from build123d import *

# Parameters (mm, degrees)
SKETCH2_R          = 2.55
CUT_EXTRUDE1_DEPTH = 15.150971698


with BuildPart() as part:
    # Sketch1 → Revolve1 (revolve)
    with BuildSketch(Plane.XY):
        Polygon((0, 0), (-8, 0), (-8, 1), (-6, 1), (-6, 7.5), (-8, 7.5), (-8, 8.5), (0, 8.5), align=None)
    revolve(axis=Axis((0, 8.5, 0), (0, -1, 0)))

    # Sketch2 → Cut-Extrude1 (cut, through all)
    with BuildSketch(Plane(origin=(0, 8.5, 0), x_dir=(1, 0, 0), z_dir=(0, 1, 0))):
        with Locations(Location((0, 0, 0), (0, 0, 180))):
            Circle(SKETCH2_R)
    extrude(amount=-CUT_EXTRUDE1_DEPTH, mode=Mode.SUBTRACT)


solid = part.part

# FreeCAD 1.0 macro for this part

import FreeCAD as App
import Part
import Sketcher
from FreeCAD import Vector
Q = App.Units.Quantity

doc = App.newDocument("Part")
body = doc.addObject("PartDesign::Body", "Body")

# Sketch on XY plane
sketch1 = body.newObject("Sketcher::SketchObject", "Sketch")
sketch1.AttachmentSupport = (doc.getObject("XY_Plane"), [""])
sketch1.MapMode = "FlatFace"
sketch1.addGeometry([
    Part.LineSegment(Vector(-8, 0, 0), Vector(0, 0, 0)),  # 0
    Part.LineSegment(Vector(0, 0, 0), Vector(0, 8.5, 0)),  # 1
    Part.LineSegment(Vector(0, 8.5, 0), Vector(-8, 8.5, 0)),  # 2
    Part.LineSegment(Vector(-8, 8.5, 0), Vector(-8, 7.5, 0)),  # 3
    Part.LineSegment(Vector(-8, 7.5, 0), Vector(-6, 7.5, 0)),  # 4
    Part.LineSegment(Vector(-6, 7.5, 0), Vector(-6, 1, 0)),  # 5
    Part.LineSegment(Vector(-6, 1, 0), Vector(-8, 1, 0)),  # 6
    Part.LineSegment(Vector(-8, 1, 0), Vector(-8, 0, 0)),  # 7
], False)
sketch1.addConstraint([
    Sketcher.Constraint("Coincident", 0, 2, 1, 1),
    Sketcher.Constraint("Coincident", 1, 2, 2, 1),
    Sketcher.Constraint("Coincident", 2, 2, 3, 1),
    Sketcher.Constraint("Coincident", 3, 2, 4, 1),
    Sketcher.Constraint("Coincident", 4, 2, 5, 1),
    Sketcher.Constraint("Coincident", 5, 2, 6, 1),
    Sketcher.Constraint("Coincident", 6, 2, 7, 1),
    Sketcher.Constraint("Coincident", 7, 2, 0, 1),
    Sketcher.Constraint("Horizontal", 0),
    Sketcher.Constraint("Vertical", 1),
    Sketcher.Constraint("Horizontal", 2),
    Sketcher.Constraint("Vertical", 3),
    Sketcher.Constraint("Horizontal", 4),
    Sketcher.Constraint("Vertical", 5),
    Sketcher.Constraint("Horizontal", 6),
    Sketcher.Constraint("Vertical", 7),
    Sketcher.Constraint("Coincident", 0, 2, -1, 1),
    Sketcher.Constraint("Vertical", 3, 2, 6, 2),
    Sketcher.Constraint("Equal", 3, 7),
    Sketcher.Constraint("DistanceX", 0, 1, 0, 2, Q("8 mm")),
    Sketcher.Constraint("DistanceX", 4, 1, 4, 2, Q("2 mm")),
    Sketcher.Constraint("DistanceY", 3, 2, 3, 1, Q("1 mm")),
    Sketcher.Constraint("DistanceY", 1, 1, 1, 2, Q("8.5 mm")),
])
revolution = body.newObject("PartDesign::Revolution", "Revolution")
revolution.Profile = sketch1
revolution.ReferenceAxis = (sketch1, ["V_Axis"])
revolution.Angle = 360

# Sketch on XZ plane
sketch2 = body.newObject("Sketcher::SketchObject", "Sketch001")
sketch2.AttachmentSupport = (doc.getObject("XZ_Plane"), [""])
sketch2.MapMode = "FlatFace"
sketch2.AttachmentOffset = App.Placement(Vector(0, 0, -8.5), App.Rotation())
sketch2.addGeometry(Part.Circle(Vector(0, 0, 0), Vector(0, 0, 1), 2.55), False)
sketch2.addConstraint([
    Sketcher.Constraint("Coincident", 0, 3, -1, 1),
    Sketcher.Constraint("Diameter", 0, Q("5.1 mm")),
])
pocket1 = body.newObject("PartDesign::Pocket", "Pocket")
pocket1.Profile = sketch2
pocket1.Type = "ThroughAll"
pocket1.Reversed = True

doc.recompute()
